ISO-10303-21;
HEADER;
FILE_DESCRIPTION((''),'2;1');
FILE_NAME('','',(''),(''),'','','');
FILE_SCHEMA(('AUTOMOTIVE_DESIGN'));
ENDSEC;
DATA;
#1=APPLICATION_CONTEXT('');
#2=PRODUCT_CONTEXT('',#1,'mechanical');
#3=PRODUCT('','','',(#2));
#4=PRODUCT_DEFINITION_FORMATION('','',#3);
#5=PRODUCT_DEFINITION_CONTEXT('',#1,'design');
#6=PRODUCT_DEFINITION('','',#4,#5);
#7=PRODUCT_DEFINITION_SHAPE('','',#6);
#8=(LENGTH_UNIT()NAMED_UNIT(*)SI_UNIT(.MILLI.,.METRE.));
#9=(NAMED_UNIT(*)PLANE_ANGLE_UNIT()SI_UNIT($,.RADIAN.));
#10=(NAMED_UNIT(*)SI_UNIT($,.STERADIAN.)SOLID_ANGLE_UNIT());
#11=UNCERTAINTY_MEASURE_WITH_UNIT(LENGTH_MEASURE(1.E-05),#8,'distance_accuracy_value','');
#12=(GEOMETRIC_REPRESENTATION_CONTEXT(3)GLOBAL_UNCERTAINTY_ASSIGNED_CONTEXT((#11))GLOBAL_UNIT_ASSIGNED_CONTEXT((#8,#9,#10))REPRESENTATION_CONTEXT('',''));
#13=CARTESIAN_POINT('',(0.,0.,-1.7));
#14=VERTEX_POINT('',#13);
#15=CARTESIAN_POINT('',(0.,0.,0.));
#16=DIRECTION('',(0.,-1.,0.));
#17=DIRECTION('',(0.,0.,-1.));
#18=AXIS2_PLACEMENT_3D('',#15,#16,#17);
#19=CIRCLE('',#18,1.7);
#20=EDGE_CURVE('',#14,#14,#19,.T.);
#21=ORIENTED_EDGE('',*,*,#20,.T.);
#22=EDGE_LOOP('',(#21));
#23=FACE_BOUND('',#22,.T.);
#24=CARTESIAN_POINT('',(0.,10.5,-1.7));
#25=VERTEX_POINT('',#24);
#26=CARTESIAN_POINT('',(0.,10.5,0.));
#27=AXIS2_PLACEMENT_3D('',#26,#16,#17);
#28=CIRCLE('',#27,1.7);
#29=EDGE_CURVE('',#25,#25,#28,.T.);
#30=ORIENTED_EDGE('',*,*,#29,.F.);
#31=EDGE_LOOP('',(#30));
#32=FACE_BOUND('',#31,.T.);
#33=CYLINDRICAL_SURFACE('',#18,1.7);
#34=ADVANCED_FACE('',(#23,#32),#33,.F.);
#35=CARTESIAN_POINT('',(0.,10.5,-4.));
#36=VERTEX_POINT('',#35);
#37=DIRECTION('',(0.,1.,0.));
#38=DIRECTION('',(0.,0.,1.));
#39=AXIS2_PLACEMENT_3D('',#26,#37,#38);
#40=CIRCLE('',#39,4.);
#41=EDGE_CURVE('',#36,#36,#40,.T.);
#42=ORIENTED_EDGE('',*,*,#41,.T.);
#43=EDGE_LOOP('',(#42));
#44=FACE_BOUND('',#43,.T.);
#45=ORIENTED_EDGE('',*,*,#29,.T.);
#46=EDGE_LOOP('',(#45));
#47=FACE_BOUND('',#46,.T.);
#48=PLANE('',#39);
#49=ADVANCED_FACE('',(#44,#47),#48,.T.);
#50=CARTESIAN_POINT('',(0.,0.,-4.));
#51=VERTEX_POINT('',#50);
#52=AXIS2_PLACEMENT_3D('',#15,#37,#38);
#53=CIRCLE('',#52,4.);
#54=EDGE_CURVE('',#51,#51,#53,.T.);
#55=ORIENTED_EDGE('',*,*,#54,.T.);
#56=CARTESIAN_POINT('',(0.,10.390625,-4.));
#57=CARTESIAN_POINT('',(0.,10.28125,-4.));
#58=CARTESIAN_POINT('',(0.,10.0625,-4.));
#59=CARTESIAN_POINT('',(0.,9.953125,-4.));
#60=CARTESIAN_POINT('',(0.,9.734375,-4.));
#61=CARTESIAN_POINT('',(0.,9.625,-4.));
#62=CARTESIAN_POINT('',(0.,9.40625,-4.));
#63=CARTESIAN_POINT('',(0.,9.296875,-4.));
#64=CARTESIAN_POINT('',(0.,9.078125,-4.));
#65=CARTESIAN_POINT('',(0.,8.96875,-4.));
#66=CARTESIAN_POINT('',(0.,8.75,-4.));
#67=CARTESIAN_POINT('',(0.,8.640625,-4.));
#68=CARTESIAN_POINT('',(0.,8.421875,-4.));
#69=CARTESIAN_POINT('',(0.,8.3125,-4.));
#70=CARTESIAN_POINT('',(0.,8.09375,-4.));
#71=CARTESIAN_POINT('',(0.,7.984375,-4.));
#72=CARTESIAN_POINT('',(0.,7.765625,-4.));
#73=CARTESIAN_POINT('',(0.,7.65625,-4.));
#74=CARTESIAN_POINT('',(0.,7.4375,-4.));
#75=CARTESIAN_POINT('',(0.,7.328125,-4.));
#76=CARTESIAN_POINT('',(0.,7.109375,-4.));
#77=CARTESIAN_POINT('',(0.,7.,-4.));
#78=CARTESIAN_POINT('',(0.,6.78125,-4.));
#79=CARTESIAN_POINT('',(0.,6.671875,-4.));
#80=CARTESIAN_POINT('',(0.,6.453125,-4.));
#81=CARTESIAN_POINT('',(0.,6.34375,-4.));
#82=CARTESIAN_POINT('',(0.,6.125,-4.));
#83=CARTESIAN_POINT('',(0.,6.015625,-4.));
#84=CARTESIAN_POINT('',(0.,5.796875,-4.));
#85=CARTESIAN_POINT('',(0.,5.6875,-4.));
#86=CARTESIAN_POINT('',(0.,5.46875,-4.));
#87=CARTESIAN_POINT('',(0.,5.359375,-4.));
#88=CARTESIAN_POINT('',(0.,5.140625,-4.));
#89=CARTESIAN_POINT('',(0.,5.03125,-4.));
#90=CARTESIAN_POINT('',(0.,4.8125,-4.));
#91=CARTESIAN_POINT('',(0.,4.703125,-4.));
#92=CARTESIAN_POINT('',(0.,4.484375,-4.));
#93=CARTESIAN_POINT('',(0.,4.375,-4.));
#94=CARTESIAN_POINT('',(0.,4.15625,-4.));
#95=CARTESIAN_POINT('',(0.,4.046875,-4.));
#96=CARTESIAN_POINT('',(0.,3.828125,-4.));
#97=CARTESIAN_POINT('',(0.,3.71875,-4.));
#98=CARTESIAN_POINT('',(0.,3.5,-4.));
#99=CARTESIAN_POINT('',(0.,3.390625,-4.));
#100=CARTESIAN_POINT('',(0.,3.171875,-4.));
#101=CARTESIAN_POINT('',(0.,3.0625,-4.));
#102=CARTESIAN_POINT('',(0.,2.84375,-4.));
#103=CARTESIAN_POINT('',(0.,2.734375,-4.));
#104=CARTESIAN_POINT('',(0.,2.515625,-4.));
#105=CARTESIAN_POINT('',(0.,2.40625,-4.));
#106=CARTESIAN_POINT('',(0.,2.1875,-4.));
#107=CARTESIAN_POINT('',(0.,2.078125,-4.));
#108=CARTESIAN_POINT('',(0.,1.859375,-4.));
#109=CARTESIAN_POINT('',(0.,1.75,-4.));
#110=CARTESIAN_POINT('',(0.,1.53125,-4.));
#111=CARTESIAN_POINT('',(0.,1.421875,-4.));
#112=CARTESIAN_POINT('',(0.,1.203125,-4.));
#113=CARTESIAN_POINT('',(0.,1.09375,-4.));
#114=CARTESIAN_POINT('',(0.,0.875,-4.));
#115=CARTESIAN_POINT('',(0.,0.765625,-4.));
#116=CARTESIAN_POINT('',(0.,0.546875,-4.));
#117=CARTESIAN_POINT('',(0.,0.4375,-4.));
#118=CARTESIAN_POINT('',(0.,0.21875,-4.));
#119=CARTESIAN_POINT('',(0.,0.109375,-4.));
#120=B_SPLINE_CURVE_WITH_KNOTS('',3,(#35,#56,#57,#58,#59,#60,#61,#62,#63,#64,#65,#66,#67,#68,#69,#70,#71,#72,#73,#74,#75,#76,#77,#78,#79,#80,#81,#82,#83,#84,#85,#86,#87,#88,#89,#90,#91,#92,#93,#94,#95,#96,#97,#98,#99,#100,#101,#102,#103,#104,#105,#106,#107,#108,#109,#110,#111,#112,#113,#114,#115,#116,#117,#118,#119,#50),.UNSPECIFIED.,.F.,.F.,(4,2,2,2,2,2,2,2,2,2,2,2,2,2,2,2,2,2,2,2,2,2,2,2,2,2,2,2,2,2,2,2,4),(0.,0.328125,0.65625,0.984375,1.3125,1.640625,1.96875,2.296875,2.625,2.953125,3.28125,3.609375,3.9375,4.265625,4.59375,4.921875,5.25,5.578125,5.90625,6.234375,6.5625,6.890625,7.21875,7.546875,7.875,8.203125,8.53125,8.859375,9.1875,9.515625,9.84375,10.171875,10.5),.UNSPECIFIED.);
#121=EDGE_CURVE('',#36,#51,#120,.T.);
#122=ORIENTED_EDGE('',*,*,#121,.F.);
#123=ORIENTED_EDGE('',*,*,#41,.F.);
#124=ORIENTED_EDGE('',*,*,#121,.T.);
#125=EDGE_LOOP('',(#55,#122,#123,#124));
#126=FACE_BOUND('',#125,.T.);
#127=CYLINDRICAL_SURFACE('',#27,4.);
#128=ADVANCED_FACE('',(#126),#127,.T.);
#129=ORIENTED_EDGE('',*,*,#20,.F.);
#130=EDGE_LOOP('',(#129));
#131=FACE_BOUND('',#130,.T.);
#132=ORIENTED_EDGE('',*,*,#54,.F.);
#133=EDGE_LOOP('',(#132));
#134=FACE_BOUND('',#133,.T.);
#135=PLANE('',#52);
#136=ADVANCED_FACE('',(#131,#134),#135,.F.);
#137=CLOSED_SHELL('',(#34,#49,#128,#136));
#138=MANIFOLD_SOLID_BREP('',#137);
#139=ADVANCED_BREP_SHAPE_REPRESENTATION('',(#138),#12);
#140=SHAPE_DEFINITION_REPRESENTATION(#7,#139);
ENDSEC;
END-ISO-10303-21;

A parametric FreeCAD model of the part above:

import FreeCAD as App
import Part
import Sketcher

V = App.Vector
Q = App.Units.Quantity

doc = App.newDocument("Part")
body = doc.addObject("PartDesign::Body", "Body")

sketch1 = body.newObject("Sketcher::SketchObject", "Sketch")
sketch1.AttachmentSupport = (doc.getObject("XZ_Plane"), [""])
sketch1.MapMode = "FlatFace"
sketch1.addGeometry(Part.Circle(V(0, 0, 0), V(0, 0, 1), 4), False)
sketch1.addConstraint([
    Sketcher.Constraint("Coincident", 0, 3, -1, 1),
    Sketcher.Constraint("Diameter", 0, Q("8 mm")),
])
pad1 = body.newObject("PartDesign::Pad", "Pad")
pad1.Profile = sketch1
pad1.Length = 10.5
pad1.Reversed = True

sketch2 = body.newObject("Sketcher::SketchObject", "Sketch001")
sketch2.AttachmentSupport = (doc.getObject("XZ_Plane"), [""])
sketch2.MapMode = "FlatFace"
sketch2.addGeometry(Part.Circle(V(0, 0, 0), V(0, 0, 1), 1.7), False)
sketch2.addConstraint([
    Sketcher.Constraint("Coincident", 0, 3, -1, 1),
    Sketcher.Constraint("Diameter", 0, Q("3.4 mm")),
])
doc.recompute()
hole = body.newObject("PartDesign::Hole", "Hole")
hole.Profile = sketch2
hole.ThreadType = "None"
hole.Diameter = 3.4
hole.DepthType = "ThroughAll"

doc.recompute()
